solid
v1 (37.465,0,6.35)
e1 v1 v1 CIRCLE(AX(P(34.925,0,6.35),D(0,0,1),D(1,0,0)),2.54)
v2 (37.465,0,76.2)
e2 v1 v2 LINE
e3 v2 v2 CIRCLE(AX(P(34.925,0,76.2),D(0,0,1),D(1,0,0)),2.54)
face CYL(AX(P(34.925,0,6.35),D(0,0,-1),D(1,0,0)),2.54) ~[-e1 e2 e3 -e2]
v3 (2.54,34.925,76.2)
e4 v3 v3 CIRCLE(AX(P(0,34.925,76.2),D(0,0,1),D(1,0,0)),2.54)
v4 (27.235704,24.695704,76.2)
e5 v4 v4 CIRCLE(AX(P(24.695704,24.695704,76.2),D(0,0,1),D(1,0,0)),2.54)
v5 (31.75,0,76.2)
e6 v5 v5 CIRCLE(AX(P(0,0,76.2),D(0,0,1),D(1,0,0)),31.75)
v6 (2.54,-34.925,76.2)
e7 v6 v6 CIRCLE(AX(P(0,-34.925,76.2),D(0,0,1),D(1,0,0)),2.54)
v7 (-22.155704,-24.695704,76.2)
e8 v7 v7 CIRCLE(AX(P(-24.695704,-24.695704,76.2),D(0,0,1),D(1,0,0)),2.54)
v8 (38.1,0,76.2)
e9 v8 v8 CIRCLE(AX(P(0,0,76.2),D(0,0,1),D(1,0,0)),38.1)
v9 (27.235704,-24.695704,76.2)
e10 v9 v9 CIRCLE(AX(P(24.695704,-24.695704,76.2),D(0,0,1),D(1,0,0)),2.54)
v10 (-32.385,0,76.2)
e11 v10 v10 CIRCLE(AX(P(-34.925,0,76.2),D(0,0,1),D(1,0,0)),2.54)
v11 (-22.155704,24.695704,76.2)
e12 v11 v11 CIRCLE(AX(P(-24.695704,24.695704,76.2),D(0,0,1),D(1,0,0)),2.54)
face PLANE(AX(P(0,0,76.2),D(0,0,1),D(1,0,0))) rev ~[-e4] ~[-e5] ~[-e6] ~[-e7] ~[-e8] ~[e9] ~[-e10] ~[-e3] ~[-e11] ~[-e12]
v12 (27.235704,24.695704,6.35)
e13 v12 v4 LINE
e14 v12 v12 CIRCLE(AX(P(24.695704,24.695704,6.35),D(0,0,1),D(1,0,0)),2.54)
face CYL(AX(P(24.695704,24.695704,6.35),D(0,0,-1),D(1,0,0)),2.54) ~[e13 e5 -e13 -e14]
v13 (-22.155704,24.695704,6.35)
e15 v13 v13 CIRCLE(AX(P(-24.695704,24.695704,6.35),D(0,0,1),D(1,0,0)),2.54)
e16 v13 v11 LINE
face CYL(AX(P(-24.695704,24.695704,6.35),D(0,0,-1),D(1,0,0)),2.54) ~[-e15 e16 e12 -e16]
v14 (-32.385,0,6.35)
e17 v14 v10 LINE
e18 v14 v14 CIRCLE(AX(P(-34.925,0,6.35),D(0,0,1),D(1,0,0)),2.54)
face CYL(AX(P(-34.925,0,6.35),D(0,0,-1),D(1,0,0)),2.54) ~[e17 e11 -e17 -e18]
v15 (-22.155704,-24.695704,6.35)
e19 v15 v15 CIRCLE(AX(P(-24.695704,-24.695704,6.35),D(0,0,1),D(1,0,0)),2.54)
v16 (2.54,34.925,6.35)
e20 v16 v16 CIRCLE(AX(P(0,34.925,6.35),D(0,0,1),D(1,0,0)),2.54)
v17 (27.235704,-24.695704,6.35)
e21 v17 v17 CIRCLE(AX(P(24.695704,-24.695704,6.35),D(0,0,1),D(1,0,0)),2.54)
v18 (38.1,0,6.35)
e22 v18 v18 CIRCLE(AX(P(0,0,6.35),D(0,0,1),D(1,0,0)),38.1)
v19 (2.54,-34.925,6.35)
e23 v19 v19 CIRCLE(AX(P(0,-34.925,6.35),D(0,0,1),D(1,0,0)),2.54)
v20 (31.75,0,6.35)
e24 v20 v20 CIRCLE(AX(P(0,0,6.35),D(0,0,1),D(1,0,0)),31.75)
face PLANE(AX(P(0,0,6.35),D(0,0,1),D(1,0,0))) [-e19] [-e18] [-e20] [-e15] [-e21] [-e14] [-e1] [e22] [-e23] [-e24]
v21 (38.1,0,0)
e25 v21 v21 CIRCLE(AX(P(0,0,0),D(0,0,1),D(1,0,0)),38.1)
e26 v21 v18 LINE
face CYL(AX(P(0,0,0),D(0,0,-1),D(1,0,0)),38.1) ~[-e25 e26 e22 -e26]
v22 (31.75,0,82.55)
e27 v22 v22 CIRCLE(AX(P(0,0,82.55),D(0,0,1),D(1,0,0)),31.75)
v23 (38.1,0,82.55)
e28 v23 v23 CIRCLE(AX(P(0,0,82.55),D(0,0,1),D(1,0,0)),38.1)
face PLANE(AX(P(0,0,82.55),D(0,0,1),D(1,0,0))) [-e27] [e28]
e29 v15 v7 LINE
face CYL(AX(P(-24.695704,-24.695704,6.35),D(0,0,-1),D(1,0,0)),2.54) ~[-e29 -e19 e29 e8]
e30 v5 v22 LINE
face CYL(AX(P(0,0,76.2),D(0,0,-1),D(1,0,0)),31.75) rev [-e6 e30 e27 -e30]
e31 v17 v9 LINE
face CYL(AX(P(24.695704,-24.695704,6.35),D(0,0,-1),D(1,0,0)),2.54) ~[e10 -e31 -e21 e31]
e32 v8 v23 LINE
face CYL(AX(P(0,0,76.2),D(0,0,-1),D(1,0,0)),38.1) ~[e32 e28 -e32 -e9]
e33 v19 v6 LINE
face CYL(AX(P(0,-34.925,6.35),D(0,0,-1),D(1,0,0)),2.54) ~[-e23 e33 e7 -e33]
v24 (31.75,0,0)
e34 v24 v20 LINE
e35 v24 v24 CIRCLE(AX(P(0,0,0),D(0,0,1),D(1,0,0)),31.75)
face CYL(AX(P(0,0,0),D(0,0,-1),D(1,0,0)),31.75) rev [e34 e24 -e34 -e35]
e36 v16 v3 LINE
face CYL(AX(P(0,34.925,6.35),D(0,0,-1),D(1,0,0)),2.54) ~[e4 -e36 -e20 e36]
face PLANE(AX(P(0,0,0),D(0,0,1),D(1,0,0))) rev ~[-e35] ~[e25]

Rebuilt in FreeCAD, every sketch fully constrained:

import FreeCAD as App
import Part
import Sketcher

V = App.Vector
Q = App.Units.Quantity

doc = App.newDocument("Part")
body = doc.addObject("PartDesign::Body", "Body")

# Sketch on XY plane
sketch1 = doc.addObject("Sketcher::SketchObject", "Sketch")
body.addObject(sketch1)
sketch1.AttachmentSupport = (doc.XY_Plane, [""])
sketch1.MapMode = "FlatFace"
sketch1.addGeometry(Part.Circle(V(0, 0, 0), V(0, 0, 1), 38), False)
sketch1.addGeometry(Part.Circle(V(0, 0, 0), V(0, 0, 1), 32), False)
sketch1.addConstraint(Sketcher.Constraint("Coincident", 0, 3, -1, 1))
sketch1.addConstraint(Sketcher.Constraint("Coincident", 1, 3, -1, 1))
sketch1.addConstraint(Sketcher.Constraint("Diameter", 0, Q("3 in")))
sketch1.addConstraint(Sketcher.Constraint("Diameter", 1, Q("2.5 in")))
pad1 = doc.addObject("PartDesign::Pad", "Pad")
body.addObject(pad1)
pad1.Profile = sketch1
pad1.Length = Q("0.25 in")

# Sketch on XY plane
sketch2 = doc.addObject("Sketcher::SketchObject", "Sketch001")
body.addObject(sketch2)
sketch2.AttachmentSupport = (doc.XY_Plane, [""])
sketch2.MapMode = "FlatFace"
sketch2.AttachmentOffset = App.Placement(V(0, 0, 0.25 * 25.4), App.Rotation())
sketch2.addGeometry(Part.Circle(V(24.7, 24.7, 0), V(0, 0, 1), 2.5), False)
sketch2.addGeometry(Part.Circle(V(34.9, 0, 0), V(0, 0, 1), 2.5), False)
sketch2.addGeometry(Part.Circle(V(24.7, -24.7, 0), V(0, 0, 1), 2.5), False)
sketch2.addGeometry(Part.Circle(V(0, -34.9, 0), V(0, 0, 1), 2.5), False)
sketch2.addGeometry(Part.Circle(V(-24.7, -24.7, 0), V(0, 0, 1), 2.5), False)
sketch2.addGeometry(Part.Circle(V(-34.9, 0, 0), V(0, 0, 1), 2.5), False)
sketch2.addGeometry(Part.Circle(V(-24.7, 24.7, 0), V(0, 0, 1), 2.5), False)
sketch2.addGeometry(Part.Circle(V(0, 34.9, 0), V(0, 0, 1), 2.5), False)
sketch2.addConstraint(Sketcher.Constraint("Equal", 0, 1))
sketch2.addConstraint(Sketcher.Constraint("Equal", 1, 2))
sketch2.addConstraint(Sketcher.Constraint("Equal", 2, 3))
sketch2.addConstraint(Sketcher.Constraint("Equal", 3, 4))
sketch2.addConstraint(Sketcher.Constraint("Equal", 4, 5))
sketch2.addConstraint(Sketcher.Constraint("Equal", 5, 6))
sketch2.addConstraint(Sketcher.Constraint("Equal", 6, 7))
sketch2.addConstraint(Sketcher.Constraint("Symmetric", 0, 3, 4, 3, -1, 1))
sketch2.addConstraint(Sketcher.Constraint("Symmetric", 1, 3, 5, 3, -1, 1))
sketch2.addConstraint(Sketcher.Constraint("Symmetric", 2, 3, 6, 3, -1, 1))
sketch2.addConstraint(Sketcher.Constraint("Symmetric", 3, 3, 7, 3, -1, 1))
sketch2.addConstraint(Sketcher.Constraint("Symmetric", 2, 3, 4, 3, -2))
sketch2.addConstraint(Sketcher.Constraint("PointOnObject", 1, 3, -1))
sketch2.addConstraint(Sketcher.Constraint("PointOnObject", 3, 3, -2))
sketch2.addConstraint(Sketcher.Constraint("Diameter", 0, Q("0.2 in")))
sketch2.addConstraint(Sketcher.Constraint("DistanceX", 5, 3, 1, 3, Q("2.75 in")))
sketch2.addConstraint(Sketcher.Constraint("DistanceY", 3, 3, -1, 1, Q("1.375 in")))
sketch2.addConstraint(Sketcher.Constraint("DistanceX", -1, 1, 0, 3, Q("24.695704 mm")))
sketch2.addConstraint(Sketcher.Constraint("DistanceY", -1, 1, 0, 3, Q("24.695704 mm")))
pad2 = doc.addObject("PartDesign::Pad", "Pad001")
body.addObject(pad2)
pad2.Profile = sketch2
pad2.Length = Q("2.75 in")

# Sketch on XY plane
sketch3 = doc.addObject("Sketcher::SketchObject", "Sketch002")
body.addObject(sketch3)
sketch3.AttachmentSupport = (doc.XY_Plane, [""])
sketch3.MapMode = "FlatFace"
sketch3.AttachmentOffset = App.Placement(V(0, 0, 3 * 25.4), App.Rotation())
sketch3.addGeometry(Part.Circle(V(0, 0, 0), V(0, 0, 1), 38), False)
sketch3.addGeometry(Part.Circle(V(0, 0, 0), V(0, 0, 1), 32), False)
sketch3.addConstraint(Sketcher.Constraint("Coincident", 0, 3, -1, 1))
sketch3.addConstraint(Sketcher.Constraint("Coincident", 1, 3, -1, 1))
sketch3.addConstraint(Sketcher.Constraint("Diameter", 0, Q("3 in")))
sketch3.addConstraint(Sketcher.Constraint("Diameter", 1, Q("2.5 in")))
pad3 = doc.addObject("PartDesign::Pad", "Pad002")
body.addObject(pad3)
pad3.Profile = sketch3
pad3.Length = Q("0.25 in")

doc.recompute()
